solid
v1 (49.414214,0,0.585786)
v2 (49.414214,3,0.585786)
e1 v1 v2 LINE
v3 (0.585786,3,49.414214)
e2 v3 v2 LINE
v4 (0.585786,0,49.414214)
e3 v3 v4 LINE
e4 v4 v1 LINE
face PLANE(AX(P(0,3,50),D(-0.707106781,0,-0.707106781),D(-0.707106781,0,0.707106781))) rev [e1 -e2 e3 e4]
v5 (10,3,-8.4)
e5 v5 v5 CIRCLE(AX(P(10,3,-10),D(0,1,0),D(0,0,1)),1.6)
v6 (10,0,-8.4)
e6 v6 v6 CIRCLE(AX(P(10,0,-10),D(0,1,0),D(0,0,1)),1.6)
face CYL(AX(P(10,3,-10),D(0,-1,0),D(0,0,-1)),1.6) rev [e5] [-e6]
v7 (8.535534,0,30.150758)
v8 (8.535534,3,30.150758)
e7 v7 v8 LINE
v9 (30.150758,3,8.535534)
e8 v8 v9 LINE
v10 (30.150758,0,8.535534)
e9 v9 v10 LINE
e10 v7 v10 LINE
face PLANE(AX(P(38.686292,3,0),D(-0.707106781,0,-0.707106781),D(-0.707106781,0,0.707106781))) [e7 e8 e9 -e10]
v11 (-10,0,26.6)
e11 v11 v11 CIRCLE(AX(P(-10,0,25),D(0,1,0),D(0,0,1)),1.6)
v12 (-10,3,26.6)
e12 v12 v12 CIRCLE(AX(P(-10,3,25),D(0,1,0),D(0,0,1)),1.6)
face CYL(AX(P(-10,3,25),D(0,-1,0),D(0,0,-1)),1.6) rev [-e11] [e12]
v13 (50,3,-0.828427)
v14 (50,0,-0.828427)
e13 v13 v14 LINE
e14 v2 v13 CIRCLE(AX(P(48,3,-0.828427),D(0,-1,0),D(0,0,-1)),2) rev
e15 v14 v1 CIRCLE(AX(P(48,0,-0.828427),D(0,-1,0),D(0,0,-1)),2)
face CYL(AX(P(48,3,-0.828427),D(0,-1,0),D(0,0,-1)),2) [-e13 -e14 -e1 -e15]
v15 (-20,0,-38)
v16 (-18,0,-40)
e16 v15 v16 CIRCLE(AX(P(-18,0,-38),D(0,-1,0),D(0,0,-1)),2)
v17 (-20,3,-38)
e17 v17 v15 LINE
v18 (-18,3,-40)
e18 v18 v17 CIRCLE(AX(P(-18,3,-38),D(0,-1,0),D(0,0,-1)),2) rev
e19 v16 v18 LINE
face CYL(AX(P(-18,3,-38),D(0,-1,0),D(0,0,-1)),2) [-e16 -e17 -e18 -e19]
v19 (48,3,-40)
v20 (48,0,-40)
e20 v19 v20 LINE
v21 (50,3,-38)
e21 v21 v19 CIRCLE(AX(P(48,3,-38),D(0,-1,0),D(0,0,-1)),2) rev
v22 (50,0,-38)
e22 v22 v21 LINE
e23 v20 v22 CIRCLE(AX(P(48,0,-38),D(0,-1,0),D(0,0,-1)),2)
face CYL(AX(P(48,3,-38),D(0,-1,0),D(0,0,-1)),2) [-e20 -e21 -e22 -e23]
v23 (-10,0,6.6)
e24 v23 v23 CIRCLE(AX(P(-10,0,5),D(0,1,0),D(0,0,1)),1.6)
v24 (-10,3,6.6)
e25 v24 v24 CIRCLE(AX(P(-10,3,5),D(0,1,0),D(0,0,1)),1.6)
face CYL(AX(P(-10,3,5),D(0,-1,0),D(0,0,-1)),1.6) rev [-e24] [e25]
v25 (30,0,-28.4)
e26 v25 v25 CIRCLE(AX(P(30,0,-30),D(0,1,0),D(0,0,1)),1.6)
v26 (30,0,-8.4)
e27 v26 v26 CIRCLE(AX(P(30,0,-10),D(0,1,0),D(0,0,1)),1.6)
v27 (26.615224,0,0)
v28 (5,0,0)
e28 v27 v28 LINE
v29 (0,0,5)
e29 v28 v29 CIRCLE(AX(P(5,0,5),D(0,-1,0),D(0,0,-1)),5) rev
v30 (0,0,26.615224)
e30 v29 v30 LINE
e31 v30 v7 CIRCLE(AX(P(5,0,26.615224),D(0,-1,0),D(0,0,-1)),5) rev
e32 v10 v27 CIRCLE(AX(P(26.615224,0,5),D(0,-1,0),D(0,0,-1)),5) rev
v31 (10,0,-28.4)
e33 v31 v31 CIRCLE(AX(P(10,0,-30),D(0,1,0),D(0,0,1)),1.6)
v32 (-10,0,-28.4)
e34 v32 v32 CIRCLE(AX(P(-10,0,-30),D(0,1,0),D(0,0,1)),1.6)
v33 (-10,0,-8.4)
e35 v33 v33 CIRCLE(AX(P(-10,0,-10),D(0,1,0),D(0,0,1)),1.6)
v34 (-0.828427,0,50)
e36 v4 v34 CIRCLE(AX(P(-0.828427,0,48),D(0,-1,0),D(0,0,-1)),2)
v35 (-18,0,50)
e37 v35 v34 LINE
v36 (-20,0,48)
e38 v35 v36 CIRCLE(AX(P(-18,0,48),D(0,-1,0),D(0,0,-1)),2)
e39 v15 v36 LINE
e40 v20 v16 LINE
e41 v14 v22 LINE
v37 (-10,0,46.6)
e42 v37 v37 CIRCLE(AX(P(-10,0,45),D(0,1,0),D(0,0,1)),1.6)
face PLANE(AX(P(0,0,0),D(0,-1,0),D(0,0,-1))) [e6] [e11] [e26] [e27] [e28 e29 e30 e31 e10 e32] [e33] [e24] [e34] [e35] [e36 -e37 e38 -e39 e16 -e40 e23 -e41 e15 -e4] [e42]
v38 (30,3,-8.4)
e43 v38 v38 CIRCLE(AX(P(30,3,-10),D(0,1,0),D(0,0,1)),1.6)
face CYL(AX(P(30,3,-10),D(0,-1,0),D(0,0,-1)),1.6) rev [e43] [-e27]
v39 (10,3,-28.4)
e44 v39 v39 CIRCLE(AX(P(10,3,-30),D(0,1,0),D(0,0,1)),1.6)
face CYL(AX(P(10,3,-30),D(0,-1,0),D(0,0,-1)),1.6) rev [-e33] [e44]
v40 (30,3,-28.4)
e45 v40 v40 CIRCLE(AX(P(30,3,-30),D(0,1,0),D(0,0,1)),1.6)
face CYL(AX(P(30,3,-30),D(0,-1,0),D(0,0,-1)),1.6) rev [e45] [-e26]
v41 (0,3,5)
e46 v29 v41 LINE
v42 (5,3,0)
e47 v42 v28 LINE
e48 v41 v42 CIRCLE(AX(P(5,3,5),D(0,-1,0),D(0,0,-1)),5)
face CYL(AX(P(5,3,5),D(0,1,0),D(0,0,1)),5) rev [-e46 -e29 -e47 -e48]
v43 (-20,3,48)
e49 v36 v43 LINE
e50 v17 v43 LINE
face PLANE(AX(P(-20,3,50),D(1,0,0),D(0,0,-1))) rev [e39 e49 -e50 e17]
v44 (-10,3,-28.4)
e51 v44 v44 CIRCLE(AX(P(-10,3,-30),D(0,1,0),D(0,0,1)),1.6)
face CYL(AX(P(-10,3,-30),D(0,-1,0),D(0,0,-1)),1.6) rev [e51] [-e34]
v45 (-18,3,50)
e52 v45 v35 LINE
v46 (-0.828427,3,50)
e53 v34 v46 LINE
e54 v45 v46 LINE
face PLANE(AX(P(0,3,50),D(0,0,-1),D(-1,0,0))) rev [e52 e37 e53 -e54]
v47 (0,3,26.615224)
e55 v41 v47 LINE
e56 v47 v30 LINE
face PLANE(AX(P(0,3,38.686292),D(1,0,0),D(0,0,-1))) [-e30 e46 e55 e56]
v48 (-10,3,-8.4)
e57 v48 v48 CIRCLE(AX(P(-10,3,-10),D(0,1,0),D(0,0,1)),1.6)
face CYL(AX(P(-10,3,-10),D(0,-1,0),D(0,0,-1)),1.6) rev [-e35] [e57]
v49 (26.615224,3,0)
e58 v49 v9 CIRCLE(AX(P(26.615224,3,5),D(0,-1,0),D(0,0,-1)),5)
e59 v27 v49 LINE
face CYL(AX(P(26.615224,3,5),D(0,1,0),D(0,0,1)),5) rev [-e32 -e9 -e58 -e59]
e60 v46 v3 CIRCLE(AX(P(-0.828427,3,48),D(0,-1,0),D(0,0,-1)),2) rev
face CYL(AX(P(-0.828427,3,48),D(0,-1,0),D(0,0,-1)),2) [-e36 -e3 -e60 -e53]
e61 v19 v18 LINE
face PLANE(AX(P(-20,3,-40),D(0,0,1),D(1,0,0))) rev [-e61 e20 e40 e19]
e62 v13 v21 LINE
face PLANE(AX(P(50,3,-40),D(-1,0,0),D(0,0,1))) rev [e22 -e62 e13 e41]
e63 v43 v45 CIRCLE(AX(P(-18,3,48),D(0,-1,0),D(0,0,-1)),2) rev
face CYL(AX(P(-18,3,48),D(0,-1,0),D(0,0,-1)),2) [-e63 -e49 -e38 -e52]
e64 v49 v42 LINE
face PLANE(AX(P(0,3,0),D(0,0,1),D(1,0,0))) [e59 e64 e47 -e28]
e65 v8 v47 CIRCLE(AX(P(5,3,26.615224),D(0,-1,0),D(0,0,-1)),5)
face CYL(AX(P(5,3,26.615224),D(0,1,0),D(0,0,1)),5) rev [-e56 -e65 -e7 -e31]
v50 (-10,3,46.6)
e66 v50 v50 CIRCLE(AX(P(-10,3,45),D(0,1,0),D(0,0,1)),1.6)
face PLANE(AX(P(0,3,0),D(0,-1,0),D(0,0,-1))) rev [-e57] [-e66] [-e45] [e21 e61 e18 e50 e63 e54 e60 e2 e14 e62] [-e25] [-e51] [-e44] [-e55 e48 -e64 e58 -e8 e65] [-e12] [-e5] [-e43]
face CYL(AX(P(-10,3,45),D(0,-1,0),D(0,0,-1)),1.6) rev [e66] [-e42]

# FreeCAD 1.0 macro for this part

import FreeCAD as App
import Part
import Sketcher
Q = App.Units.Quantity


def edges_at(feature, points):
    """Names of the edges that pass closest to the given points."""
    edges = feature.Shape.Edges
    near = lambda p: min(range(len(edges)), key=lambda i: edges[i].distToShape(Part.Vertex(*p))[0])
    return sorted({f"Edge{near(p) + 1}" for p in points})

doc = App.newDocument("Part")
body = doc.addObject("PartDesign::Body", "Body")

# Sketch on XZ plane
sketch1 = body.newObject("Sketcher::SketchObject", "Sketch")
sketch1.AttachmentSupport = (doc.getObject("XZ_Plane"), [""])
sketch1.MapMode = "FlatFace"
sketch1.addGeometry(Part.LineSegment(App.Vector(-20, 50, 0), App.Vector(0, 50, 0)), False)
sketch1.addGeometry(Part.LineSegment(App.Vector(0, 50, 0), App.Vector(50, 0, 0)), False)
sketch1.addGeometry(Part.LineSegment(App.Vector(50, 0, 0), App.Vector(50, -40, 0)), False)
sketch1.addGeometry(Part.LineSegment(App.Vector(50, -40, 0), App.Vector(-20, -40, 0)), False)
sketch1.addGeometry(Part.LineSegment(App.Vector(-20, -40, 0), App.Vector(-20, 50, 0)), False)
sketch1.addGeometry(Part.LineSegment(App.Vector(0, 38.686292, 0), App.Vector(0, 0, 0)), False)
sketch1.addGeometry(Part.LineSegment(App.Vector(0, 0, 0), App.Vector(38.686292, 0, 0)), False)
sketch1.addGeometry(Part.LineSegment(App.Vector(38.686292, 0, 0), App.Vector(0, 38.686292, 0)), False)
sketch1.addGeometry(Part.Circle(App.Vector(-10, 45, 0), App.Vector(0, 0, 1), 1.6), False)
sketch1.addGeometry(Part.Circle(App.Vector(-10, 25, 0), App.Vector(0, 0, 1), 1.6), False)
sketch1.addGeometry(Part.Circle(App.Vector(30, -10, 0), App.Vector(0, 0, 1), 1.6), False)
sketch1.addGeometry(Part.Circle(App.Vector(30, -30, 0), App.Vector(0, 0, 1), 1.6), False)
sketch1.addGeometry(Part.Circle(App.Vector(10, -10, 0), App.Vector(0, 0, 1), 1.6), False)
sketch1.addGeometry(Part.Circle(App.Vector(-10, 5, 0), App.Vector(0, 0, 1), 1.6), False)
sketch1.addGeometry(Part.Circle(App.Vector(-10, -10, 0), App.Vector(0, 0, 1), 1.6), False)
sketch1.addGeometry(Part.Circle(App.Vector(10, -30, 0), App.Vector(0, 0, 1), 1.6), False)
sketch1.addGeometry(Part.Circle(App.Vector(-10, -30, 0), App.Vector(0, 0, 1), 1.6), False)
sketch1.addConstraint(Sketcher.Constraint("Coincident", 0, 2, 1, 1))
sketch1.addConstraint(Sketcher.Constraint("Coincident", 1, 2, 2, 1))
sketch1.addConstraint(Sketcher.Constraint("Coincident", 2, 2, 3, 1))
sketch1.addConstraint(Sketcher.Constraint("Coincident", 3, 2, 4, 1))
sketch1.addConstraint(Sketcher.Constraint("Coincident", 4, 2, 0, 1))
sketch1.addConstraint(Sketcher.Constraint("Coincident", 5, 2, 6, 1))
sketch1.addConstraint(Sketcher.Constraint("Coincident", 6, 2, 7, 1))
sketch1.addConstraint(Sketcher.Constraint("Coincident", 7, 2, 5, 1))
sketch1.addConstraint(Sketcher.Constraint("Horizontal", 0))
sketch1.addConstraint(Sketcher.Constraint("Vertical", 2))
sketch1.addConstraint(Sketcher.Constraint("Horizontal", 3))
sketch1.addConstraint(Sketcher.Constraint("Vertical", 4))
sketch1.addConstraint(Sketcher.Constraint("Vertical", 5))
sketch1.addConstraint(Sketcher.Constraint("Horizontal", 6))
sketch1.addConstraint(Sketcher.Constraint("Coincident", 5, 2, -1, 1))
sketch1.addConstraint(Sketcher.Constraint("Equal", 8, 9))
sketch1.addConstraint(Sketcher.Constraint("Equal", 9, 10))
sketch1.addConstraint(Sketcher.Constraint("Equal", 10, 11))
sketch1.addConstraint(Sketcher.Constraint("Equal", 11, 12))
sketch1.addConstraint(Sketcher.Constraint("Equal", 12, 13))
sketch1.addConstraint(Sketcher.Constraint("Equal", 13, 14))
sketch1.addConstraint(Sketcher.Constraint("Equal", 14, 15))
sketch1.addConstraint(Sketcher.Constraint("Equal", 15, 16))
sketch1.addConstraint(Sketcher.Constraint("Symmetric", 12, 3, 14, 3, -2))
sketch1.addConstraint(Sketcher.Constraint("Symmetric", 15, 3, 16, 3, -2))
sketch1.addConstraint(Sketcher.Constraint("PointOnObject", 0, 2, -2))
sketch1.addConstraint(Sketcher.Constraint("PointOnObject", 1, 2, -1))
sketch1.addConstraint(Sketcher.Constraint("Parallel", 1, 7))
sketch1.addConstraint(Sketcher.Constraint("Horizontal", 10, 3, 12, 3))
sketch1.addConstraint(Sketcher.Constraint("Horizontal", 11, 3, 15, 3))
sketch1.addConstraint(Sketcher.Constraint("Vertical", 8, 3, 9, 3))
sketch1.addConstraint(Sketcher.Constraint("Vertical", 10, 3, 11, 3))
sketch1.addConstraint(Sketcher.Constraint("Vertical", 9, 3, 13, 3))
sketch1.addConstraint(Sketcher.Constraint("Vertical", 13, 3, 14, 3))
sketch1.addConstraint(Sketcher.Constraint("Vertical", 12, 3, 15, 3))
sketch1.addConstraint(Sketcher.Constraint("Equal", 6, 5))
sketch1.addConstraint(Sketcher.Constraint("Diameter", 8, Q("3.2 mm")))
sketch1.addConstraint(Sketcher.Constraint("DistanceX", 0, 1, 0, 2, Q("20 mm")))
sketch1.addConstraint(Sketcher.Constraint("DistanceX", 3, 2, 3, 1, Q("70 mm")))
sketch1.addConstraint(Sketcher.Constraint("DistanceY", 2, 2, 2, 1, Q("40 mm")))
sketch1.addConstraint(Sketcher.Constraint("DistanceX", 8, 3, -1, 1, Q("10 mm")))
sketch1.addConstraint(Sketcher.Constraint("DistanceY", -1, 1, 8, 3, Q("45 mm")))
sketch1.addConstraint(Sketcher.Constraint("DistanceY", -1, 1, 9, 3, Q("25 mm")))
sketch1.addConstraint(Sketcher.Constraint("DistanceX", -1, 1, 10, 3, Q("30 mm")))
sketch1.addConstraint(Sketcher.Constraint("DistanceY", 10, 3, -1, 1, Q("10 mm")))
sketch1.addConstraint(Sketcher.Constraint("DistanceY", 11, 3, -1, 1, Q("30 mm")))
sketch1.addConstraint(Sketcher.Constraint("DistanceY", -1, 1, 13, 3, Q("5 mm")))
sketch1.addConstraint(Sketcher.Constraint("DistanceX", 6, 1, 6, 2, Q("38.686292 mm")))
pad1 = body.newObject("PartDesign::Pad", "Pad")
pad1.Profile = sketch1
pad1.Length = 3
pad1.Reversed = True
doc.recompute()

fillet = body.newObject("PartDesign::Fillet", "Fillet")
fillet.Base = (pad1, edges_at(pad1, [
    (0, 1.5, 50),
    (-20, 1.5, 50),
    (-20, 1.5, -40),
    (50, 1.5, -40),
    (50, 1.5, 0),
]))
fillet.Radius = 2
doc.recompute()

fillet2 = body.newObject("PartDesign::Fillet", "Fillet001")
fillet2.Base = (fillet, edges_at(fillet, [(38.686, 1.5, 0), (0, 1.5, 0), (0, 1.5, 38.686)]))
fillet2.Radius = 5

doc.recompute()
